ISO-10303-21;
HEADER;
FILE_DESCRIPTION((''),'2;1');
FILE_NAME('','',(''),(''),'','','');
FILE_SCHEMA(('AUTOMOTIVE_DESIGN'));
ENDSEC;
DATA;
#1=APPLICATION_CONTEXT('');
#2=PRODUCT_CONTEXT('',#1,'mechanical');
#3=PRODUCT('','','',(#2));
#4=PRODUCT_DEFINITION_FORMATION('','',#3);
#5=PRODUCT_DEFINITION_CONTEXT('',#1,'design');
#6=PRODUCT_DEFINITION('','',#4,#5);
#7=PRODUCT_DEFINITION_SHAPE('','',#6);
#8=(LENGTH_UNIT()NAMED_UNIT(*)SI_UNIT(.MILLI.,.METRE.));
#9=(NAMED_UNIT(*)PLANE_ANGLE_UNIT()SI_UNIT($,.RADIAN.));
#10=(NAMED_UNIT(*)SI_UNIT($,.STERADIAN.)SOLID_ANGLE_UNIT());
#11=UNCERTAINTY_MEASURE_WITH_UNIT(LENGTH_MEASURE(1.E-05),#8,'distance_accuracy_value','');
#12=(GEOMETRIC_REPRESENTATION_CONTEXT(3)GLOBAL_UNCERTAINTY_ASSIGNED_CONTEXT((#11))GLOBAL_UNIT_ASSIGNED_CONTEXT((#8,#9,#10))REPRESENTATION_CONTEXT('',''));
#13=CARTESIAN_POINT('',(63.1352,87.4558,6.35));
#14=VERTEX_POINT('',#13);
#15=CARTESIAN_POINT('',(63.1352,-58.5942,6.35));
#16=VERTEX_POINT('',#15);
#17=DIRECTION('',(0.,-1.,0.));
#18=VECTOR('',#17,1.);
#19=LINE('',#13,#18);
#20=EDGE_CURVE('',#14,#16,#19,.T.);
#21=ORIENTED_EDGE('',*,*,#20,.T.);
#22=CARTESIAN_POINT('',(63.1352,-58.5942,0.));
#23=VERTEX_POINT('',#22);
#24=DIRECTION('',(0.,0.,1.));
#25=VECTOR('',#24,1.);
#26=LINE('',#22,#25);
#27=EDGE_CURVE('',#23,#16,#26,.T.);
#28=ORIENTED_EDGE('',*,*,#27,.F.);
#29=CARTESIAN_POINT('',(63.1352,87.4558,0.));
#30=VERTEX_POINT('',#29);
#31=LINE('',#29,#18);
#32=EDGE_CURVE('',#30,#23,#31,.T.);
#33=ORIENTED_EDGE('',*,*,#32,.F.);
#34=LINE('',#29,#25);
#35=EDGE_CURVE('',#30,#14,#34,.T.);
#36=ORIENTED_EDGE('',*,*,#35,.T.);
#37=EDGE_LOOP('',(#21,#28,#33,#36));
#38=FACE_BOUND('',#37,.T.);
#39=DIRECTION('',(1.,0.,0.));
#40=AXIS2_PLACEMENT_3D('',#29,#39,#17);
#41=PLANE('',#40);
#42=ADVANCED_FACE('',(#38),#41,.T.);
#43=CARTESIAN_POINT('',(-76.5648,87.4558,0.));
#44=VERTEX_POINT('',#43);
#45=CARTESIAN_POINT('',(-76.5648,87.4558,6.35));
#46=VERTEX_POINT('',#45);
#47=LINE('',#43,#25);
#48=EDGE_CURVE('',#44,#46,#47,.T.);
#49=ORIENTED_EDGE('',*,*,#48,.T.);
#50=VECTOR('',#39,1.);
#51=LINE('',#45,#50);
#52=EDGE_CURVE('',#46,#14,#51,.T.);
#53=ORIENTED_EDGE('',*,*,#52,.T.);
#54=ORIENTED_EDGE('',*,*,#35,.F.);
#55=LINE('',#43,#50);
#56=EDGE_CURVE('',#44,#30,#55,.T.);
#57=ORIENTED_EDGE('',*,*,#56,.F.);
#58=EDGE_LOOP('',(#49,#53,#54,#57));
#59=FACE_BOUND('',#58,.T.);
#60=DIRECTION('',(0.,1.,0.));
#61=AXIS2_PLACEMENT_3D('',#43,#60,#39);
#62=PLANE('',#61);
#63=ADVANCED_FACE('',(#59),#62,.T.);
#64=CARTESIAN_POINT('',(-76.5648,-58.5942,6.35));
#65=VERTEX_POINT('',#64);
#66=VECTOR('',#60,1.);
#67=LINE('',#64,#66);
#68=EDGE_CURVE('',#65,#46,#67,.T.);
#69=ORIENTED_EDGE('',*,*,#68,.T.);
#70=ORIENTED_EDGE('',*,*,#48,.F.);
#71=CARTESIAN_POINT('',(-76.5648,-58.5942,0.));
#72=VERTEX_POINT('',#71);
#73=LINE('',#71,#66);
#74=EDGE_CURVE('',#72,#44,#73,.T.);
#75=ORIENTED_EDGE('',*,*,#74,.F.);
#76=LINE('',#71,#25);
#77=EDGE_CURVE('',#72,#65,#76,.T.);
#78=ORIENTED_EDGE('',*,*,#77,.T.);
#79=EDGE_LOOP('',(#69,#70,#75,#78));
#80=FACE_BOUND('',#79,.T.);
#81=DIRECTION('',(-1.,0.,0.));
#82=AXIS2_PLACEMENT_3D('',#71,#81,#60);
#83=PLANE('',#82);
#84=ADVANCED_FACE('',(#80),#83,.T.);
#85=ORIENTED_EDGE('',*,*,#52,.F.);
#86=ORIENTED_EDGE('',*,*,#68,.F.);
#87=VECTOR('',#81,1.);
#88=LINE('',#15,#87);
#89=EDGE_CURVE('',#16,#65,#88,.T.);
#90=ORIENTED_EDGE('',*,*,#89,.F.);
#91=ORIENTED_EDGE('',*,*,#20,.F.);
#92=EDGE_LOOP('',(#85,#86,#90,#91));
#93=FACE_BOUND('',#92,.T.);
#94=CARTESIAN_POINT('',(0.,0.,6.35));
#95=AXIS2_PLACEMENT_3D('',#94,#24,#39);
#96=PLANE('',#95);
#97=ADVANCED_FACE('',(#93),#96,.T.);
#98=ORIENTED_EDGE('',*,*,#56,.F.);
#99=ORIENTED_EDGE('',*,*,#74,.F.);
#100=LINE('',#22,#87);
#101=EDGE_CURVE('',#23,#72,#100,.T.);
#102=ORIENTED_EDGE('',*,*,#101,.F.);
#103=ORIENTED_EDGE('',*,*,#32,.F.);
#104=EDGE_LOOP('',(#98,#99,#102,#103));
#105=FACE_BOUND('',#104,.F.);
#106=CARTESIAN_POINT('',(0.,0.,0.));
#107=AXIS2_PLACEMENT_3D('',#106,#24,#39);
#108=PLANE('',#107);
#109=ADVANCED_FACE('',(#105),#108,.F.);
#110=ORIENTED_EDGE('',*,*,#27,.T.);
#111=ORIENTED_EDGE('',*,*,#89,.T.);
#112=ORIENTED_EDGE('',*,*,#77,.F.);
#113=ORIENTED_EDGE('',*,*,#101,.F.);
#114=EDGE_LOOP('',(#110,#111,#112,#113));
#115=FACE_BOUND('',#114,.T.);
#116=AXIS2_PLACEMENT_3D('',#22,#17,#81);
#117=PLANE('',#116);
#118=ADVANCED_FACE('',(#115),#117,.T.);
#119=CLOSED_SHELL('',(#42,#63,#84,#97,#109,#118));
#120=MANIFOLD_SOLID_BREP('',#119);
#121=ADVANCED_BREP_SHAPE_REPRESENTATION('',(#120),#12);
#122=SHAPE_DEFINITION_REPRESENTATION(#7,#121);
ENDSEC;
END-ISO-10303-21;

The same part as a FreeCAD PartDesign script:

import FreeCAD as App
import Part
import Sketcher

V = App.Vector
Q = App.Units.Quantity

doc = App.newDocument("Part")
body = doc.addObject("PartDesign::Body", "Body")

# Sketch on XY plane
sketch1 = doc.addObject("Sketcher::SketchObject", "Sketch")
body.addObject(sketch1)
sketch1.AttachmentSupport = (doc.XY_Plane, [""])
sketch1.MapMode = "FlatFace"
sketch1.addGeometry([
    Part.LineSegment(V(63, 87, 0), V(-77, 87, 0)),
    Part.LineSegment(V(-77, 87, 0), V(-77, -59, 0)),
    Part.LineSegment(V(-77, -59, 0), V(63, -59, 0)),
    Part.LineSegment(V(63, -59, 0), V(63, 87, 0)),
], False)
sketch1.addConstraint([
    Sketcher.Constraint("Coincident", 0, 2, 1, 1),
    Sketcher.Constraint("Coincident", 1, 2, 2, 1),
    Sketcher.Constraint("Coincident", 2, 2, 3, 1),
    Sketcher.Constraint("Coincident", 3, 2, 0, 1),
    Sketcher.Constraint("Horizontal", 0),
    Sketcher.Constraint("Vertical", 1),
    Sketcher.Constraint("Horizontal", 2),
    Sketcher.Constraint("Vertical", 3),
    Sketcher.Constraint("DistanceX", 0, 2, 0, 1, Q("5.5 in")),
    Sketcher.Constraint("DistanceY", 1, 2, 1, 1, Q("5.75 in")),
    Sketcher.Constraint("DistanceY", -1, 1, 0, 2, Q("87.4558 mm")),
    Sketcher.Constraint("DistanceX", -1, 1, 2, 2, Q("63.1352 mm")),
])
pad1 = doc.addObject("PartDesign::Pad", "Pad")
body.addObject(pad1)
pad1.Profile = sketch1
pad1.Length = Q("0.25 in")

doc.recompute()
